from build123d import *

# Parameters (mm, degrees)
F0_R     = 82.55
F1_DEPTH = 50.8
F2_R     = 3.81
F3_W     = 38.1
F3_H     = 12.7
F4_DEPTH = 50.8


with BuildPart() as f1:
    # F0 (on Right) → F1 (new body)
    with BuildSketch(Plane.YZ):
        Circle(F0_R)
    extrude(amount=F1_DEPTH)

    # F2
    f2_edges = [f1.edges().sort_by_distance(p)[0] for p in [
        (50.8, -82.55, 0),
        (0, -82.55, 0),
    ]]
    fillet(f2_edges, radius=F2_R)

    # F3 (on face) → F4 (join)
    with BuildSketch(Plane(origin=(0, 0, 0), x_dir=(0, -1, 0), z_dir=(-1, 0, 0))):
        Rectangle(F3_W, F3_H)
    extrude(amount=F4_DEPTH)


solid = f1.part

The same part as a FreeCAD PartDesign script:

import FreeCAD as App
import Part
import Sketcher

V = App.Vector
Q = App.Units.Quantity


def edges_at(feature, points):
    """Names of the edges that pass closest to the given points."""
    edges = feature.Shape.Edges
    near = lambda p: min(range(len(edges)), key=lambda i: edges[i].distToShape(Part.Vertex(*p))[0])
    return sorted({f"Edge{near(p) + 1}" for p in points})

doc = App.newDocument("Part")
body = doc.addObject("PartDesign::Body", "Body")

sketch1 = body.newObject("Sketcher::SketchObject", "Sketch")
sketch1.AttachmentSupport = (doc.getObject("YZ_Plane"), [""])
sketch1.MapMode = "FlatFace"
sketch1.addGeometry(Part.Circle(V(0, 0, 0), V(0, 0, 1), 82.55), False)
sketch1.addConstraint([
    Sketcher.Constraint("Coincident", 0, 3, -1, 1),
    Sketcher.Constraint("Diameter", 0, Q("6.5 in")),
])
pad1 = body.newObject("PartDesign::Pad", "Pad")
pad1.Profile = sketch1
pad1.Length = Q("2 in")
doc.recompute()

fillet = body.newObject("PartDesign::Fillet", "Fillet")
fillet.Base = (pad1, edges_at(pad1, [(50.8, -82.55, 0), (0, -82.55, 0)]))
fillet.Radius = Q("0.15 in")

sketch2 = body.newObject("Sketcher::SketchObject", "Sketch001")
sketch2.AttachmentSupport = (doc.getObject("YZ_Plane"), [""])
sketch2.MapMode = "FlatFace"
sketch2.addGeometry([
    Part.LineSegment(V(19.05, 6.35, 0), V(19.05, -6.35, 0)),
    Part.LineSegment(V(19.05, -6.35, 0), V(-19.05, -6.35, 0)),
    Part.LineSegment(V(-19.05, -6.35, 0), V(-19.05, 6.35, 0)),
    Part.LineSegment(V(-19.05, 6.35, 0), V(19.05, 6.35, 0)),
], False)
sketch2.addConstraint([
    Sketcher.Constraint("Coincident", 0, 2, 1, 1),
    Sketcher.Constraint("Coincident", 1, 2, 2, 1),
    Sketcher.Constraint("Coincident", 2, 2, 3, 1),
    Sketcher.Constraint("Coincident", 3, 2, 0, 1),
    Sketcher.Constraint("Vertical", 0),
    Sketcher.Constraint("Horizontal", 1),
    Sketcher.Constraint("Vertical", 2),
    Sketcher.Constraint("Horizontal", 3),
    Sketcher.Constraint("Symmetric", 0, 2, 2, 2, -1, 1),
    Sketcher.Constraint("DistanceX", 1, 2, 1, 1, Q("1.5 in")),
    Sketcher.Constraint("DistanceY", 0, 2, 0, 1, Q("0.5 in")),
])
pad2 = body.newObject("PartDesign::Pad", "Pad001")
pad2.Profile = sketch2
pad2.Length = Q("2 in")
pad2.Reversed = True

doc.recompute()
